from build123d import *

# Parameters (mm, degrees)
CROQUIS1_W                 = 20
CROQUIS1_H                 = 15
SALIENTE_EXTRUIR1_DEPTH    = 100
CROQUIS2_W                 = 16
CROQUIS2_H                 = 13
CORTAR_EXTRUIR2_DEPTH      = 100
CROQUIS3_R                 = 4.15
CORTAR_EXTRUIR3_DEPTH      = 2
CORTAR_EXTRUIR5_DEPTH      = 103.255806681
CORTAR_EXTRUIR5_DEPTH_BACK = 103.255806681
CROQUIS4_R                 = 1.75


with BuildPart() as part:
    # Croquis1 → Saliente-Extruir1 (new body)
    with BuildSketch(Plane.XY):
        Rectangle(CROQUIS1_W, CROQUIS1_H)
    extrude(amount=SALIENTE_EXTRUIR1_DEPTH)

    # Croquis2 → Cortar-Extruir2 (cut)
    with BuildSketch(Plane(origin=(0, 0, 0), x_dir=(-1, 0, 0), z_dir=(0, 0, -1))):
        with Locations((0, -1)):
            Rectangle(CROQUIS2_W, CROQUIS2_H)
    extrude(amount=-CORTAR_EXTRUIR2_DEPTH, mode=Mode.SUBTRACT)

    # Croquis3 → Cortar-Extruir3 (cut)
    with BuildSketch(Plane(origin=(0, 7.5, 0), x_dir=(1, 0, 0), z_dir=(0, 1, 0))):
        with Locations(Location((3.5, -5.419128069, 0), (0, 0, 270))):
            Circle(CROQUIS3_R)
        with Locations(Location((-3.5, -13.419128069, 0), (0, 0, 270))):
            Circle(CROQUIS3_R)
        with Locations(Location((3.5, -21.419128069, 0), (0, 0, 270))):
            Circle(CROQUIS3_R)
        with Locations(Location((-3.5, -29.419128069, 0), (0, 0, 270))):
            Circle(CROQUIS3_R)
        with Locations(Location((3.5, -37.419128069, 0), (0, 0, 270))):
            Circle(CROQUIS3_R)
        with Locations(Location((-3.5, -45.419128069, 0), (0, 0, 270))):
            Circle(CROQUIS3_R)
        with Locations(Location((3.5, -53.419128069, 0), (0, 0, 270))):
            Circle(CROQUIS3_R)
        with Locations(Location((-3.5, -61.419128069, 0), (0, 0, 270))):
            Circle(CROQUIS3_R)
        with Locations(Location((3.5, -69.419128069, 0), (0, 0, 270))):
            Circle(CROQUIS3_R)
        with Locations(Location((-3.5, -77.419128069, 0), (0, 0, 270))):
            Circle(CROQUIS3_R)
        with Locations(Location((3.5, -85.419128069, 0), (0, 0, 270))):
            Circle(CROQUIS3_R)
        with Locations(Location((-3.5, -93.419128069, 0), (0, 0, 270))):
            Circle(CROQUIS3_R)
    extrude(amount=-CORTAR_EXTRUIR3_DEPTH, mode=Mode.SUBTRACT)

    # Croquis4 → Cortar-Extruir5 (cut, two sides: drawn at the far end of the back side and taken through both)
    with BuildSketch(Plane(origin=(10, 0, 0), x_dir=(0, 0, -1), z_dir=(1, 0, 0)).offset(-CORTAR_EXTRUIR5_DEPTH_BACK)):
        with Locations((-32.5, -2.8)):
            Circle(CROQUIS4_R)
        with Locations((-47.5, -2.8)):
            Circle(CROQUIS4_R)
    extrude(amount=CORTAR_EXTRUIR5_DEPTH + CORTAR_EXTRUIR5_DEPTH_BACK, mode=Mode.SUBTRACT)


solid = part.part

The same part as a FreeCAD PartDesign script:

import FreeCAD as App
import Part
import Sketcher

V = App.Vector

doc = App.newDocument("Part")
body = doc.addObject("PartDesign::Body", "Body")

# Sketch on XY plane
sketch1 = body.newObject("Sketcher::SketchObject", "Sketch")
sketch1.AttachmentSupport = (doc.getObject("XY_Plane"), [""])
sketch1.MapMode = "FlatFace"
sketch1.addGeometry([
    Part.LineSegment(V(-10, 8, 0), V(-10, -8, 0)),
    Part.LineSegment(V(-10, -8, 0), V(10, -8, 0)),
    Part.LineSegment(V(10, -8, 0), V(10, 8, 0)),
    Part.LineSegment(V(10, 8, 0), V(-10, 8, 0)),
], False)
sketch1.addConstraint([
    Sketcher.Constraint("Coincident", 0, 2, 1, 1),
    Sketcher.Constraint("Coincident", 1, 2, 2, 1),
    Sketcher.Constraint("Coincident", 2, 2, 3, 1),
    Sketcher.Constraint("Coincident", 3, 2, 0, 1),
    Sketcher.Constraint("Vertical", 0),
    Sketcher.Constraint("Horizontal", 1),
    Sketcher.Constraint("Vertical", 2),
    Sketcher.Constraint("Horizontal", 3),
    Sketcher.Constraint("Symmetric", 0, 2, 2, 2, -1, 1),
    Sketcher.Constraint("DistanceX", 1, 1, 1, 2, 20.0),
    Sketcher.Constraint("DistanceY", 0, 2, 0, 1, 15.0),
])
pad1 = body.newObject("PartDesign::Pad", "Pad")
pad1.Profile = sketch1
pad1.Length = 100

# Sketch on XY plane
sketch2 = body.newObject("Sketcher::SketchObject", "Sketch001")
sketch2.AttachmentSupport = (doc.getObject("XY_Plane"), [""])
sketch2.MapMode = "FlatFace"
sketch2.addGeometry([
    Part.LineSegment(V(8, 6, 0), V(8, -8, 0)),
    Part.LineSegment(V(8, -8, 0), V(-8, -8, 0)),
    Part.LineSegment(V(-8, -8, 0), V(-8, 6, 0)),
    Part.LineSegment(V(-8, 6, 0), V(8, 6, 0)),
], False)
sketch2.addConstraint([
    Sketcher.Constraint("Coincident", 0, 2, 1, 1),
    Sketcher.Constraint("Coincident", 1, 2, 2, 1),
    Sketcher.Constraint("Coincident", 2, 2, 3, 1),
    Sketcher.Constraint("Coincident", 3, 2, 0, 1),
    Sketcher.Constraint("Vertical", 0),
    Sketcher.Constraint("Horizontal", 1),
    Sketcher.Constraint("Vertical", 2),
    Sketcher.Constraint("Horizontal", 3),
    Sketcher.Constraint("DistanceX", 1, 2, 1, 1, 16.0),
    Sketcher.Constraint("DistanceY", 0, 2, 0, 1, 13.0),
    Sketcher.Constraint("DistanceX", -1, 1, 0, 2, 8.0),
    Sketcher.Constraint("DistanceY", 0, 2, -1, 1, 7.5),
])
pocket1 = body.newObject("PartDesign::Pocket", "Pocket")
pocket1.Profile = sketch2
pocket1.Length = 100
pocket1.Reversed = True

# Sketch on XZ plane
sketch3 = body.newObject("Sketcher::SketchObject", "Sketch002")
sketch3.AttachmentSupport = (doc.getObject("XZ_Plane"), [""])
sketch3.MapMode = "FlatFace"
sketch3.AttachmentOffset = App.Placement(V(0, 0, -7.5), App.Rotation())
sketch3.addGeometry([
    Part.Circle(V(3.5, 5.4, 0), V(0, 0, 1), 4.2),  # 0
    Part.Circle(V(-3.5, 13.4, 0), V(0, 0, 1), 4.2),  # 1
    Part.Circle(V(3.5, 21.4, 0), V(0, 0, 1), 4.2),  # 2
    Part.Circle(V(-3.5, 29.4, 0), V(0, 0, 1), 4.2),  # 3
    Part.Circle(V(3.5, 37.4, 0), V(0, 0, 1), 4.2),  # 4
    Part.Circle(V(-3.5, 45.4, 0), V(0, 0, 1), 4.2),  # 5
    Part.Circle(V(3.5, 53.4, 0), V(0, 0, 1), 4.2),  # 6
    Part.Circle(V(-3.5, 61.4, 0), V(0, 0, 1), 4.2),  # 7
    Part.Circle(V(3.5, 69.4, 0), V(0, 0, 1), 4.2),  # 8
    Part.Circle(V(-3.5, 77.4, 0), V(0, 0, 1), 4.2),  # 9
    Part.Circle(V(3.5, 85.4, 0), V(0, 0, 1), 4.2),  # 10
    Part.Circle(V(-3.5, 93.4, 0), V(0, 0, 1), 4.2),  # 11
], False)
sketch3.addConstraint([
    Sketcher.Constraint("Equal", 0, 1),
    Sketcher.Constraint("Equal", 1, 2),
    Sketcher.Constraint("Equal", 2, 3),
    Sketcher.Constraint("Equal", 3, 4),
    Sketcher.Constraint("Equal", 4, 5),
    Sketcher.Constraint("Equal", 5, 6),
    Sketcher.Constraint("Equal", 6, 7),
    Sketcher.Constraint("Equal", 7, 8),
    Sketcher.Constraint("Equal", 8, 9),
    Sketcher.Constraint("Equal", 9, 10),
    Sketcher.Constraint("Equal", 10, 11),
    Sketcher.Constraint("Vertical", 0, 3, 2, 3),
    Sketcher.Constraint("Vertical", 1, 3, 3, 3),
    Sketcher.Constraint("Vertical", 2, 3, 4, 3),
    Sketcher.Constraint("Vertical", 3, 3, 5, 3),
    Sketcher.Constraint("Vertical", 4, 3, 6, 3),
    Sketcher.Constraint("Vertical", 5, 3, 7, 3),
    Sketcher.Constraint("Vertical", 6, 3, 8, 3),
    Sketcher.Constraint("Vertical", 7, 3, 9, 3),
    Sketcher.Constraint("Vertical", 8, 3, 10, 3),
    Sketcher.Constraint("Vertical", 9, 3, 11, 3),
    Sketcher.Constraint("Diameter", 0, 8.3),
    Sketcher.Constraint("DistanceX", 1, 3, 0, 3, 7.0),
    Sketcher.Constraint("DistanceY", 0, 3, 1, 3, 8.0),
    Sketcher.Constraint("DistanceY", 1, 3, 2, 3, 8.0),
    Sketcher.Constraint("DistanceY", 2, 3, 3, 3, 8.0),
    Sketcher.Constraint("DistanceY", 3, 3, 4, 3, 8.0),
    Sketcher.Constraint("DistanceY", 4, 3, 5, 3, 8.0),
    Sketcher.Constraint("DistanceY", 5, 3, 6, 3, 8.0),
    Sketcher.Constraint("DistanceY", 6, 3, 7, 3, 8.0),
    Sketcher.Constraint("DistanceY", 7, 3, 8, 3, 8.0),
    Sketcher.Constraint("DistanceY", 8, 3, 9, 3, 8.0),
    Sketcher.Constraint("DistanceY", 9, 3, 10, 3, 8.0),
    Sketcher.Constraint("DistanceY", 10, 3, 11, 3, 8.0),
    Sketcher.Constraint("DistanceX", -1, 1, 0, 3, 3.5),
    Sketcher.Constraint("DistanceY", -1, 1, 0, 3, 5.419128),
])
pocket2 = body.newObject("PartDesign::Pocket", "Pocket001")
pocket2.Profile = sketch3
pocket2.Length = 2
pocket2.Reversed = True

# Sketch on YZ plane
sketch4 = body.newObject("Sketcher::SketchObject", "Sketch003")
sketch4.AttachmentSupport = (doc.getObject("YZ_Plane"), [""])
sketch4.MapMode = "FlatFace"
sketch4.AttachmentOffset = App.Placement(V(0, 0, 10), App.Rotation())
sketch4.addGeometry([
    Part.Circle(V(-2.8, 32.5, 0), V(0, 0, 1), 1.8),
    Part.Circle(V(-2.8, 47.5, 0), V(0, 0, 1), 1.8),
], False)
sketch4.addConstraint([
    Sketcher.Constraint("Equal", 0, 1),
    Sketcher.Constraint("Vertical", 0, 3, 1, 3),
    Sketcher.Constraint("Diameter", 0, 3.5),
    Sketcher.Constraint("DistanceY", 0, 3, 1, 3, 15.0),
    Sketcher.Constraint("DistanceX", 0, 3, -1, 1, 2.8),
    Sketcher.Constraint("DistanceY", -1, 1, 0, 3, 32.5),
])
pocket3 = body.newObject("PartDesign::Pocket", "Pocket002")
pocket3.Profile = sketch4
pocket3.Type = "ThroughAll"
pocket3.Midplane = True

doc.recompute()
